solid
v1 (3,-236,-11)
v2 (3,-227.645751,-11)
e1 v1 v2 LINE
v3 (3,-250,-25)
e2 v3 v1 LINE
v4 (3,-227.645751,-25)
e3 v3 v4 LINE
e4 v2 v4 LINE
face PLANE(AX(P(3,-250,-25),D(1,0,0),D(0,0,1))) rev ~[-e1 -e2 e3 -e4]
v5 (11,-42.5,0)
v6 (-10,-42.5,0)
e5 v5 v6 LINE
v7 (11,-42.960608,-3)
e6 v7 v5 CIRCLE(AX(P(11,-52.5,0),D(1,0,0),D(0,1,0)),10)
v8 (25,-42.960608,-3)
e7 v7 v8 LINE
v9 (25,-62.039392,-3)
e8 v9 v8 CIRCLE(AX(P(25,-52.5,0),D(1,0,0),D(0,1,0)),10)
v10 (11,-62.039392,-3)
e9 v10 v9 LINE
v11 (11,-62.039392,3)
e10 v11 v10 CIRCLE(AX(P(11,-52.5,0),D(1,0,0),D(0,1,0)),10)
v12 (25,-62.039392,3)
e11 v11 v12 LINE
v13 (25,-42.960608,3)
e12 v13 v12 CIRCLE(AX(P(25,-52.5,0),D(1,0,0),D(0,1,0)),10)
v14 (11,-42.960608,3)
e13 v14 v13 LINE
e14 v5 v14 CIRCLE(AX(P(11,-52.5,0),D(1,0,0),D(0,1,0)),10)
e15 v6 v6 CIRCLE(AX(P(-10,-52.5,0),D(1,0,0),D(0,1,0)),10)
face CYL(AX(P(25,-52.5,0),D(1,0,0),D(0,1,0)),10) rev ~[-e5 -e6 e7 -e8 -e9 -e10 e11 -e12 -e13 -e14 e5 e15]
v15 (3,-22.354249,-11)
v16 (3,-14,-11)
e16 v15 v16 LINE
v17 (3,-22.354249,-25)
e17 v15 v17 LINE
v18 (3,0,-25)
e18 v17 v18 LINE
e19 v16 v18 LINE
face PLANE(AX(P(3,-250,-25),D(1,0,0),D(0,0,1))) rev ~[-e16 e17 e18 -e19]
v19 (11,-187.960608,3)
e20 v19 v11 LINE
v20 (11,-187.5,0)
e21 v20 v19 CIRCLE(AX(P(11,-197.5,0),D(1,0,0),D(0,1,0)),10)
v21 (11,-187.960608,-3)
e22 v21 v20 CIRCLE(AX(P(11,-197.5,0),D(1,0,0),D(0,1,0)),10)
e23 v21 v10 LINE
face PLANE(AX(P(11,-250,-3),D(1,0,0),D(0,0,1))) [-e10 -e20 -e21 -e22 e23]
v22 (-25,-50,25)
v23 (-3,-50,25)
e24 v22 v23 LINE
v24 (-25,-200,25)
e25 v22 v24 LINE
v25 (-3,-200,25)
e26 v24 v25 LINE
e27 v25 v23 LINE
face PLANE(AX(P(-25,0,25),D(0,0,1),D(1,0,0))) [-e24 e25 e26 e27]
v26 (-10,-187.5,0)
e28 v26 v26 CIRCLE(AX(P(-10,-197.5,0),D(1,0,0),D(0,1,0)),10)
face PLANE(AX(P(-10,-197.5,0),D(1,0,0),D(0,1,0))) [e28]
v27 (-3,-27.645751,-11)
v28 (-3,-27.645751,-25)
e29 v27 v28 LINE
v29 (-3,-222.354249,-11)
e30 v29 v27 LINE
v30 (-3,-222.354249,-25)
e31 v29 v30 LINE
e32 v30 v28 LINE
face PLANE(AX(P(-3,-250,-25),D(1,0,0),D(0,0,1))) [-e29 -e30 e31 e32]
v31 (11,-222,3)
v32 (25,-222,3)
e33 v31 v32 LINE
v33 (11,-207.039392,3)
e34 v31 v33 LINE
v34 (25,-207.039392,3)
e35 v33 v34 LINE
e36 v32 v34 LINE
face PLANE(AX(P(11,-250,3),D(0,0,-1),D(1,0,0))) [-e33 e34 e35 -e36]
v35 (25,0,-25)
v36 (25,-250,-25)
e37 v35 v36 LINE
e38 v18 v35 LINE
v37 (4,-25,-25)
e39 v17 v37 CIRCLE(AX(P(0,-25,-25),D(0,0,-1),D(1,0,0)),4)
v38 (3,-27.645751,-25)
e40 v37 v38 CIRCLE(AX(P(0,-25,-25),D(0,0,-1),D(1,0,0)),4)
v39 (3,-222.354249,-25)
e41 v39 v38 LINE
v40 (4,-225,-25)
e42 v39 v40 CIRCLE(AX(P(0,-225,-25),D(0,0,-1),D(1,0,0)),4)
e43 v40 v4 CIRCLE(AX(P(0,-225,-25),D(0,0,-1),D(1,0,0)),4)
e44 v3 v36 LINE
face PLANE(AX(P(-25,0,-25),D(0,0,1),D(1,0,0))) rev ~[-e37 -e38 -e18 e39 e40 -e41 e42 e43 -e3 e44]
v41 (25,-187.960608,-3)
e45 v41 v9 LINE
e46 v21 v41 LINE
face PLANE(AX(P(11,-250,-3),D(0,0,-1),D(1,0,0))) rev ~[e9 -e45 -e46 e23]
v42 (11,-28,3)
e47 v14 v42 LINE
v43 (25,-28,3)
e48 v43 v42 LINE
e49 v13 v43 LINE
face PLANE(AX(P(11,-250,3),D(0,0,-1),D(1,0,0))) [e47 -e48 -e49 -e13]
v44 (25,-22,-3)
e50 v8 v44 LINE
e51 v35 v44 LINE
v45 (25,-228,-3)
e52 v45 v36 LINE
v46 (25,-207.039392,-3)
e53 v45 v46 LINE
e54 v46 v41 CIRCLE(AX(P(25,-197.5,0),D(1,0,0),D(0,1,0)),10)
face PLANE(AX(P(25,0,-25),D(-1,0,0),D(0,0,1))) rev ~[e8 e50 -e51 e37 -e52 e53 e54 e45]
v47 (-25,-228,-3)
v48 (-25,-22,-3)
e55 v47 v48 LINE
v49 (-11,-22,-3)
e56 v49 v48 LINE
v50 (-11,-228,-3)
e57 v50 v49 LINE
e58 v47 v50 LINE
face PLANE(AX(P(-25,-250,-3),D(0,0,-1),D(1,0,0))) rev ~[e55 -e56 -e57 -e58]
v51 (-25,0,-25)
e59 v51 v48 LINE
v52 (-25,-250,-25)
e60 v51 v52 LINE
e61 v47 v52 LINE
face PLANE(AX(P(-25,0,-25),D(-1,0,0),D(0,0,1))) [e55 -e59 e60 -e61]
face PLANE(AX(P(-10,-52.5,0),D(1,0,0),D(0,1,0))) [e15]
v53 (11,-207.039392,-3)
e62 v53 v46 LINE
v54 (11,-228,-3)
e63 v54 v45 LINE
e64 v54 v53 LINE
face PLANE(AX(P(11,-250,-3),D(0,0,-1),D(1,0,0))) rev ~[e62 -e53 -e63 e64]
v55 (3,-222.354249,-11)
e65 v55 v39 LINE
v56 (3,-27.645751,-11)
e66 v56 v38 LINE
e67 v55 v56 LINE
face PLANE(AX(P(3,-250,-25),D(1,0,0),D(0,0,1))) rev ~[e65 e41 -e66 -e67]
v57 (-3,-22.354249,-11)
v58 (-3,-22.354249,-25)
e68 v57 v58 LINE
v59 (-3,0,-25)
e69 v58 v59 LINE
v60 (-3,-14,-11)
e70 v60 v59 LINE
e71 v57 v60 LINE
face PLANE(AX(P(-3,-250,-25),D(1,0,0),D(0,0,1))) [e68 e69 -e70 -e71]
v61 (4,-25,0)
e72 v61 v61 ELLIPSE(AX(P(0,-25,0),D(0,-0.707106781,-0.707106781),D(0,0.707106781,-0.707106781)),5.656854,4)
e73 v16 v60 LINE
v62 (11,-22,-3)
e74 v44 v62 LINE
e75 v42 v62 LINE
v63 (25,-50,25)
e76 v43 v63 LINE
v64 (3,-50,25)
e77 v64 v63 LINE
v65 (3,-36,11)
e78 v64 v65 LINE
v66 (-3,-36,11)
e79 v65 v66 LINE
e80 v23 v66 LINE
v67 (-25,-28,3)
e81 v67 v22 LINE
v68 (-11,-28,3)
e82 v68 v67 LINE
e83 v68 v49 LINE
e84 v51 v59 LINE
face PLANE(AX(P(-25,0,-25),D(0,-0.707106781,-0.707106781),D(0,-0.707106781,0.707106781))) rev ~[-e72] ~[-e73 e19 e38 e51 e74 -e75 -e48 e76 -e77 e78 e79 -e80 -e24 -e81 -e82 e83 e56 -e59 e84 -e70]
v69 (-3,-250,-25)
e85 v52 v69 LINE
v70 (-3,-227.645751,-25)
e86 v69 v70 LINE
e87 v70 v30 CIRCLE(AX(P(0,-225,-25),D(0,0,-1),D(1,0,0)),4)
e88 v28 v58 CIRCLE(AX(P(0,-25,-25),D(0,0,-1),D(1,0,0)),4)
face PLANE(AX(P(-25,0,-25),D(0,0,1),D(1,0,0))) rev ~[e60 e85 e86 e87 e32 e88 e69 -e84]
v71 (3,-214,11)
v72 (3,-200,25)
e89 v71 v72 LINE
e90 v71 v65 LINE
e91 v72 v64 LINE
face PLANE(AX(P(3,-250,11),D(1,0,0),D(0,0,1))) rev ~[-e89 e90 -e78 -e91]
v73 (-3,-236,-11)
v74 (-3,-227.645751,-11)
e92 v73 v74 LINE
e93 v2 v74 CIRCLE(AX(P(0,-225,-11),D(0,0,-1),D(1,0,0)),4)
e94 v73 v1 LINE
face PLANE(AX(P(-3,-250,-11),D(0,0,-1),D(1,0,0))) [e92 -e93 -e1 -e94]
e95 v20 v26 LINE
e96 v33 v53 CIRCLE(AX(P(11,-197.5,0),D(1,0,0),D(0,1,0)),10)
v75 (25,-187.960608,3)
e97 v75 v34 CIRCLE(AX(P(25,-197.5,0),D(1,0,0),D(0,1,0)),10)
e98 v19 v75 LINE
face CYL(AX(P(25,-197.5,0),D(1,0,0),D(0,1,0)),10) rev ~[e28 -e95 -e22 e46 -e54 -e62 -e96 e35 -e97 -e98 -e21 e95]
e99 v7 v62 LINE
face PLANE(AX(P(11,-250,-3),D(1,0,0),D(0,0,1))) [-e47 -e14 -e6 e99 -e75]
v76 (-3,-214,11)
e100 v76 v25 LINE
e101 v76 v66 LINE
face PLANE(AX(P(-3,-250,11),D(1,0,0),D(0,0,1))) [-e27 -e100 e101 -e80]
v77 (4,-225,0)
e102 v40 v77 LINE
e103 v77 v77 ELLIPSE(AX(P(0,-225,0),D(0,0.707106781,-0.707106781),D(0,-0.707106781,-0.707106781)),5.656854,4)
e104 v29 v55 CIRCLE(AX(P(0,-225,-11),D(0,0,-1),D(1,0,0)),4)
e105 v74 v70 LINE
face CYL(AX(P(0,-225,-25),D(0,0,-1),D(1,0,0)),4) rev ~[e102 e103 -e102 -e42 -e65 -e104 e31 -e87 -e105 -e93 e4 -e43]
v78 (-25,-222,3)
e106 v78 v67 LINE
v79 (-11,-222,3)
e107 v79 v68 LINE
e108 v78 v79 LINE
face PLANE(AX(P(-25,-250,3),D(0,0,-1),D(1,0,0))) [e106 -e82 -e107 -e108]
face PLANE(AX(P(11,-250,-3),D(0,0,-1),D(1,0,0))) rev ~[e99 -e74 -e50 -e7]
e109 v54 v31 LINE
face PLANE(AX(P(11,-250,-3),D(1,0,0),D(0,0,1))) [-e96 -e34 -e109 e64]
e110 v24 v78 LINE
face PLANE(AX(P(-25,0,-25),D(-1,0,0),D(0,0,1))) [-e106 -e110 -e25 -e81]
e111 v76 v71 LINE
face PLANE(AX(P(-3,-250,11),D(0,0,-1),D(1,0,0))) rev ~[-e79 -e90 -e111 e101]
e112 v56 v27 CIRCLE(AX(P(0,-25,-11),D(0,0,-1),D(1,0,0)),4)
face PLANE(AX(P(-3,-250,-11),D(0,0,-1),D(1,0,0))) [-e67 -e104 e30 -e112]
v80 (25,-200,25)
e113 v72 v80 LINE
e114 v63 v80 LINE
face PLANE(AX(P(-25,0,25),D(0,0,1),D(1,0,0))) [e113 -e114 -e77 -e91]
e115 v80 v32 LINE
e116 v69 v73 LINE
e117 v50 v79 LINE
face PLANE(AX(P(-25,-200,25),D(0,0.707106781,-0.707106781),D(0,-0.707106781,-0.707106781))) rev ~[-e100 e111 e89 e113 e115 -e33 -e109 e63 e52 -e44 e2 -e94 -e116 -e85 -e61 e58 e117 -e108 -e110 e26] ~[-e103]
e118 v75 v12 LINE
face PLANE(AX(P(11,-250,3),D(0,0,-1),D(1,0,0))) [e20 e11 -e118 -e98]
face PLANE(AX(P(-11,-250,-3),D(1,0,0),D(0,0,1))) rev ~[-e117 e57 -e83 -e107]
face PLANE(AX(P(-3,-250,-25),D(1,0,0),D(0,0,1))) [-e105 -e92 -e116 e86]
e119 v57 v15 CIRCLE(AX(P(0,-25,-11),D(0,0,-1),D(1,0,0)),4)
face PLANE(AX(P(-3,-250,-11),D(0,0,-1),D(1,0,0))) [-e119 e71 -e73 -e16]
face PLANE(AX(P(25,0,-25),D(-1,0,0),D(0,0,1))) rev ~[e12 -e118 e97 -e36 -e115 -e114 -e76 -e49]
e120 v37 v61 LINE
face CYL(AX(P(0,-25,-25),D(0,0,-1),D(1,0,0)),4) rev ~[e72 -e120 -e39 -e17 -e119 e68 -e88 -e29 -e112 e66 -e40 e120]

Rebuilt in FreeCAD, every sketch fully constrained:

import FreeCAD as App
import Part
import Sketcher

V = App.Vector
Q = App.Units.Quantity


def add_polygon(sketch, points):
    """Adds a closed chain of lines whose ends are joined by coincident constraints."""
    first, n = sketch.GeometryCount, len(points)
    for a, b in zip(points, points[1:] + points[:1]):
        sketch.addGeometry(Part.LineSegment(App.Vector(*a, 0), App.Vector(*b, 0)), False)
    for i in range(n):
        sketch.addConstraint(Sketcher.Constraint("Coincident", first + i, 2, first + (i + 1) % n, 1))

doc = App.newDocument("Part")
body = doc.addObject("PartDesign::Body", "Body")

# Sketch on XZ plane
sketch1 = body.newObject("Sketcher::SketchObject", "Sketch")
sketch1.AttachmentSupport = (doc.getObject("XZ_Plane"), [""])
sketch1.MapMode = "FlatFace"
add_polygon(sketch1, [(-25, 25), (-25, -25), (25, -25), (25, 25)])  # lines 0-3
sketch1.addConstraint([
    Sketcher.Constraint("Vertical", 0),
    Sketcher.Constraint("Horizontal", 1),
    Sketcher.Constraint("Vertical", 2),
    Sketcher.Constraint("Horizontal", 3),
    Sketcher.Constraint("Symmetric", 0, 2, 2, 2, -1, 1),
    Sketcher.Constraint("Equal", 3, 0),
    Sketcher.Constraint("DistanceX", 1, 1, 1, 2, Q("50 mm")),
])
pad1 = body.newObject("PartDesign::Pad", "Pad")
pad1.Profile = sketch1
pad1.Length = 250

# Sketch on XY plane
sketch2 = body.newObject("Sketcher::SketchObject", "Sketch001")
sketch2.AttachmentSupport = (doc.getObject("XY_Plane"), [""])
sketch2.MapMode = "FlatFace"
sketch2.AttachmentOffset = App.Placement(V(0, 0, -25), App.Rotation())
sketch2.addGeometry([
    Part.Circle(V(0, -825, 0), V(0, 0, 1), 4),  # 0
    Part.Circle(V(0, -625, 0), V(0, 0, 1), 4),  # 1
    Part.Circle(V(0, -425, 0), V(0, 0, 1), 4),  # 2
    Part.Circle(V(0, -225, 0), V(0, 0, 1), 4),  # 3
    Part.Circle(V(0, -25, 0), V(0, 0, 1), 4),  # 4
    Part.Circle(V(0, 175, 0), V(0, 0, 1), 4),  # 5
    Part.Circle(V(0, 375, 0), V(0, 0, 1), 4),  # 6
    Part.Circle(V(0, 575, 0), V(0, 0, 1), 4),  # 7
], False)
sketch2.addConstraint([
    Sketcher.Constraint("Equal", 0, 1),
    Sketcher.Constraint("Equal", 1, 2),
    Sketcher.Constraint("Equal", 2, 3),
    Sketcher.Constraint("Equal", 3, 4),
    Sketcher.Constraint("Equal", 4, 5),
    Sketcher.Constraint("Equal", 5, 6),
    Sketcher.Constraint("Equal", 6, 7),
    Sketcher.Constraint("PointOnObject", 0, 3, -2),
    Sketcher.Constraint("PointOnObject", 1, 3, -2),
    Sketcher.Constraint("PointOnObject", 2, 3, -2),
    Sketcher.Constraint("PointOnObject", 3, 3, -2),
    Sketcher.Constraint("PointOnObject", 4, 3, -2),
    Sketcher.Constraint("PointOnObject", 5, 3, -2),
    Sketcher.Constraint("PointOnObject", 6, 3, -2),
    Sketcher.Constraint("PointOnObject", 7, 3, -2),
    Sketcher.Constraint("Diameter", 0, Q("8 mm")),
    Sketcher.Constraint("DistanceY", 0, 3, -1, 1, Q("825 mm")),
    Sketcher.Constraint("DistanceY", 1, 3, -1, 1, Q("625 mm")),
    Sketcher.Constraint("DistanceY", 2, 3, -1, 1, Q("425 mm")),
    Sketcher.Constraint("DistanceY", 3, 3, -1, 1, Q("225 mm")),
    Sketcher.Constraint("DistanceY", 4, 3, -1, 1, Q("25 mm")),
    Sketcher.Constraint("DistanceY", -1, 1, 5, 3, Q("175 mm")),
    Sketcher.Constraint("DistanceY", -1, 1, 6, 3, Q("375 mm")),
    Sketcher.Constraint("DistanceY", -1, 1, 7, 3, Q("575 mm")),
])
pocket1 = body.newObject("PartDesign::Pocket", "Pocket")
pocket1.Profile = sketch2
pocket1.Type = "ThroughAll"
pocket1.Reversed = True

# Sketch on XZ plane
sketch3 = body.newObject("Sketcher::SketchObject", "Sketch002")
sketch3.AttachmentSupport = (doc.getObject("XZ_Plane"), [""])
sketch3.MapMode = "FlatFace"
sketch3.AttachmentOffset = App.Placement(V(0, 0, 250), App.Rotation())
add_polygon(sketch3, [(-3, 25), (-3, 11), (3, 11), (3, 25)])  # lines 0-3
add_polygon(sketch3, [(-3, -11), (-3, -25), (3, -25), (3, -11)])  # lines 4-7
add_polygon(sketch3, [(-25, 53), (-25, 47), (-11, 47), (-11, 53)])  # lines 8-11
add_polygon(sketch3, [(-25, 3), (-25, -3), (-11, -3), (-11, 3)])  # lines 12-15
add_polygon(sketch3, [(-25, -47), (-25, -53), (-11, -53), (-11, -47)])  # lines 16-19
add_polygon(sketch3, [(11, 53), (11, 47), (25, 47), (25, 53)])  # lines 20-23
add_polygon(sketch3, [(11, 3), (11, -3), (25, -3), (25, 3)])  # lines 24-27
add_polygon(sketch3, [(11, -47), (11, -53), (25, -53), (25, -47)])  # lines 28-31
sketch3.addConstraint([
    Sketcher.Constraint("Vertical", 0),
    Sketcher.Constraint("Horizontal", 1),
    Sketcher.Constraint("Vertical", 2),
    Sketcher.Constraint("Horizontal", 3),
    Sketcher.Constraint("Vertical", 4),
    Sketcher.Constraint("Horizontal", 5),
    Sketcher.Constraint("Vertical", 6),
    Sketcher.Constraint("Horizontal", 7),
    Sketcher.Constraint("Vertical", 8),
    Sketcher.Constraint("Horizontal", 9),
    Sketcher.Constraint("Vertical", 10),
    Sketcher.Constraint("Horizontal", 11),
    Sketcher.Constraint("Vertical", 12),
    Sketcher.Constraint("Horizontal", 13),
    Sketcher.Constraint("Vertical", 14),
    Sketcher.Constraint("Horizontal", 15),
    Sketcher.Constraint("Vertical", 16),
    Sketcher.Constraint("Horizontal", 17),
    Sketcher.Constraint("Vertical", 18),
    Sketcher.Constraint("Horizontal", 19),
    Sketcher.Constraint("Vertical", 20),
    Sketcher.Constraint("Horizontal", 21),
    Sketcher.Constraint("Vertical", 22),
    Sketcher.Constraint("Horizontal", 23),
    Sketcher.Constraint("Vertical", 24),
    Sketcher.Constraint("Horizontal", 25),
    Sketcher.Constraint("Vertical", 26),
    Sketcher.Constraint("Horizontal", 27),
    Sketcher.Constraint("Vertical", 28),
    Sketcher.Constraint("Horizontal", 29),
    Sketcher.Constraint("Vertical", 30),
    Sketcher.Constraint("Horizontal", 31),
    Sketcher.Constraint("Symmetric", 2, 2, 4, 2, -1, 1),
    Sketcher.Constraint("Symmetric", 0, 2, 6, 2, -1, 1),
    Sketcher.Constraint("Symmetric", 18, 2, 20, 2, -1, 1),
    Sketcher.Constraint("Symmetric", 16, 2, 22, 2, -1, 1),
    Sketcher.Constraint("Symmetric", 14, 2, 24, 2, -1, 1),
    Sketcher.Constraint("Symmetric", 12, 2, 26, 2, -1, 1),
    Sketcher.Constraint("Symmetric", 10, 2, 28, 2, -1, 1),
    Sketcher.Constraint("Symmetric", 8, 2, 30, 2, -1, 1),
    Sketcher.Constraint("Symmetric", 9, 2, 20, 2, -2),
    Sketcher.Constraint("Symmetric", 11, 2, 22, 2, -2),
    Sketcher.Constraint("Horizontal", 13, 2, 24, 2),
    Sketcher.Constraint("Vertical", 3, 2, 4, 2),
    Sketcher.Constraint("Vertical", 11, 2, 12, 2),
    Sketcher.Constraint("Vertical", 10, 2, 13, 2),
    Sketcher.Constraint("Equal", 31, 0),
    Sketcher.Constraint("Equal", 7, 8),
    Sketcher.Constraint("Equal", 10, 12),
    Sketcher.Constraint("DistanceX", 1, 1, 1, 2, Q("6 mm")),
    Sketcher.Constraint("DistanceX", 9, 1, 9, 2, Q("14 mm")),
    Sketcher.Constraint("DistanceY", -1, 1, 0, 2, Q("11 mm")),
    Sketcher.Constraint("DistanceX", 8, 2, -1, 1, Q("25 mm")),
    Sketcher.Constraint("DistanceY", -1, 1, 8, 2, Q("47 mm")),
])
pocket2 = body.newObject("PartDesign::Pocket", "Pocket001")
pocket2.Profile = sketch3
pocket2.Type = "ThroughAll"

# Sketch on YZ plane
sketch4 = body.newObject("Sketcher::SketchObject", "Sketch003")
sketch4.AttachmentSupport = (doc.getObject("YZ_Plane"), [""])
sketch4.MapMode = "FlatFace"
sketch4.AttachmentOffset = App.Placement(V(0, 0, -25), App.Rotation())
add_polygon(sketch4, [(-50, 25), (0, 25), (0, -25)])  # lines 0-2
add_polygon(sketch4, [(-250, 25), (-200, 25), (-250, -25)])  # lines 3-5
sketch4.addConstraint([
    Sketcher.Constraint("Horizontal", 0),
    Sketcher.Constraint("Vertical", 1),
    Sketcher.Constraint("Horizontal", 3),
    Sketcher.Constraint("Vertical", 5),
    Sketcher.Constraint("Symmetric", 0, 2, 1, 2, -1, 1),
    Sketcher.Constraint("Perpendicular", 2, 4),
    Sketcher.Constraint("Horizontal", 2, 2, 3, 2),
    Sketcher.Constraint("Horizontal", 1, 2, 4, 2),
    Sketcher.Constraint("Equal", 0, 3),
    Sketcher.Constraint("DistanceX", 0, 1, 0, 2, Q("50 mm")),
    Sketcher.Constraint("DistanceX", 3, 2, -1, 1, Q("200 mm")),
])
pocket3 = body.newObject("PartDesign::Pocket", "Pocket002")
pocket3.Profile = sketch4
pocket3.Type = "ThroughAll"
pocket3.Reversed = True

# Sketch on YZ plane
sketch5 = body.newObject("Sketcher::SketchObject", "Sketch004")
sketch5.AttachmentSupport = (doc.getObject("YZ_Plane"), [""])
sketch5.MapMode = "FlatFace"
sketch5.AttachmentOffset = App.Placement(V(0, 0, 25), App.Rotation())
sketch5.addGeometry([
    Part.Circle(V(-198, 0, 0), V(0, 0, 1), 10),
    Part.Circle(V(-52, 0, 0), V(0, 0, 1), 10),
], False)
sketch5.addConstraint([
    Sketcher.Constraint("Equal", 0, 1),
    Sketcher.Constraint("PointOnObject", 0, 3, -1),
    Sketcher.Constraint("PointOnObject", 1, 3, -1),
    Sketcher.Constraint("Diameter", 0, Q("20 mm")),
    Sketcher.Constraint("DistanceX", 0, 3, 1, 3, Q("145 mm")),
    Sketcher.Constraint("DistanceX", 0, 3, -1, 1, Q("197.5 mm")),
])
pocket4 = body.newObject("PartDesign::Pocket", "Pocket003")
pocket4.Profile = sketch5
pocket4.Length = 35

doc.recompute()
